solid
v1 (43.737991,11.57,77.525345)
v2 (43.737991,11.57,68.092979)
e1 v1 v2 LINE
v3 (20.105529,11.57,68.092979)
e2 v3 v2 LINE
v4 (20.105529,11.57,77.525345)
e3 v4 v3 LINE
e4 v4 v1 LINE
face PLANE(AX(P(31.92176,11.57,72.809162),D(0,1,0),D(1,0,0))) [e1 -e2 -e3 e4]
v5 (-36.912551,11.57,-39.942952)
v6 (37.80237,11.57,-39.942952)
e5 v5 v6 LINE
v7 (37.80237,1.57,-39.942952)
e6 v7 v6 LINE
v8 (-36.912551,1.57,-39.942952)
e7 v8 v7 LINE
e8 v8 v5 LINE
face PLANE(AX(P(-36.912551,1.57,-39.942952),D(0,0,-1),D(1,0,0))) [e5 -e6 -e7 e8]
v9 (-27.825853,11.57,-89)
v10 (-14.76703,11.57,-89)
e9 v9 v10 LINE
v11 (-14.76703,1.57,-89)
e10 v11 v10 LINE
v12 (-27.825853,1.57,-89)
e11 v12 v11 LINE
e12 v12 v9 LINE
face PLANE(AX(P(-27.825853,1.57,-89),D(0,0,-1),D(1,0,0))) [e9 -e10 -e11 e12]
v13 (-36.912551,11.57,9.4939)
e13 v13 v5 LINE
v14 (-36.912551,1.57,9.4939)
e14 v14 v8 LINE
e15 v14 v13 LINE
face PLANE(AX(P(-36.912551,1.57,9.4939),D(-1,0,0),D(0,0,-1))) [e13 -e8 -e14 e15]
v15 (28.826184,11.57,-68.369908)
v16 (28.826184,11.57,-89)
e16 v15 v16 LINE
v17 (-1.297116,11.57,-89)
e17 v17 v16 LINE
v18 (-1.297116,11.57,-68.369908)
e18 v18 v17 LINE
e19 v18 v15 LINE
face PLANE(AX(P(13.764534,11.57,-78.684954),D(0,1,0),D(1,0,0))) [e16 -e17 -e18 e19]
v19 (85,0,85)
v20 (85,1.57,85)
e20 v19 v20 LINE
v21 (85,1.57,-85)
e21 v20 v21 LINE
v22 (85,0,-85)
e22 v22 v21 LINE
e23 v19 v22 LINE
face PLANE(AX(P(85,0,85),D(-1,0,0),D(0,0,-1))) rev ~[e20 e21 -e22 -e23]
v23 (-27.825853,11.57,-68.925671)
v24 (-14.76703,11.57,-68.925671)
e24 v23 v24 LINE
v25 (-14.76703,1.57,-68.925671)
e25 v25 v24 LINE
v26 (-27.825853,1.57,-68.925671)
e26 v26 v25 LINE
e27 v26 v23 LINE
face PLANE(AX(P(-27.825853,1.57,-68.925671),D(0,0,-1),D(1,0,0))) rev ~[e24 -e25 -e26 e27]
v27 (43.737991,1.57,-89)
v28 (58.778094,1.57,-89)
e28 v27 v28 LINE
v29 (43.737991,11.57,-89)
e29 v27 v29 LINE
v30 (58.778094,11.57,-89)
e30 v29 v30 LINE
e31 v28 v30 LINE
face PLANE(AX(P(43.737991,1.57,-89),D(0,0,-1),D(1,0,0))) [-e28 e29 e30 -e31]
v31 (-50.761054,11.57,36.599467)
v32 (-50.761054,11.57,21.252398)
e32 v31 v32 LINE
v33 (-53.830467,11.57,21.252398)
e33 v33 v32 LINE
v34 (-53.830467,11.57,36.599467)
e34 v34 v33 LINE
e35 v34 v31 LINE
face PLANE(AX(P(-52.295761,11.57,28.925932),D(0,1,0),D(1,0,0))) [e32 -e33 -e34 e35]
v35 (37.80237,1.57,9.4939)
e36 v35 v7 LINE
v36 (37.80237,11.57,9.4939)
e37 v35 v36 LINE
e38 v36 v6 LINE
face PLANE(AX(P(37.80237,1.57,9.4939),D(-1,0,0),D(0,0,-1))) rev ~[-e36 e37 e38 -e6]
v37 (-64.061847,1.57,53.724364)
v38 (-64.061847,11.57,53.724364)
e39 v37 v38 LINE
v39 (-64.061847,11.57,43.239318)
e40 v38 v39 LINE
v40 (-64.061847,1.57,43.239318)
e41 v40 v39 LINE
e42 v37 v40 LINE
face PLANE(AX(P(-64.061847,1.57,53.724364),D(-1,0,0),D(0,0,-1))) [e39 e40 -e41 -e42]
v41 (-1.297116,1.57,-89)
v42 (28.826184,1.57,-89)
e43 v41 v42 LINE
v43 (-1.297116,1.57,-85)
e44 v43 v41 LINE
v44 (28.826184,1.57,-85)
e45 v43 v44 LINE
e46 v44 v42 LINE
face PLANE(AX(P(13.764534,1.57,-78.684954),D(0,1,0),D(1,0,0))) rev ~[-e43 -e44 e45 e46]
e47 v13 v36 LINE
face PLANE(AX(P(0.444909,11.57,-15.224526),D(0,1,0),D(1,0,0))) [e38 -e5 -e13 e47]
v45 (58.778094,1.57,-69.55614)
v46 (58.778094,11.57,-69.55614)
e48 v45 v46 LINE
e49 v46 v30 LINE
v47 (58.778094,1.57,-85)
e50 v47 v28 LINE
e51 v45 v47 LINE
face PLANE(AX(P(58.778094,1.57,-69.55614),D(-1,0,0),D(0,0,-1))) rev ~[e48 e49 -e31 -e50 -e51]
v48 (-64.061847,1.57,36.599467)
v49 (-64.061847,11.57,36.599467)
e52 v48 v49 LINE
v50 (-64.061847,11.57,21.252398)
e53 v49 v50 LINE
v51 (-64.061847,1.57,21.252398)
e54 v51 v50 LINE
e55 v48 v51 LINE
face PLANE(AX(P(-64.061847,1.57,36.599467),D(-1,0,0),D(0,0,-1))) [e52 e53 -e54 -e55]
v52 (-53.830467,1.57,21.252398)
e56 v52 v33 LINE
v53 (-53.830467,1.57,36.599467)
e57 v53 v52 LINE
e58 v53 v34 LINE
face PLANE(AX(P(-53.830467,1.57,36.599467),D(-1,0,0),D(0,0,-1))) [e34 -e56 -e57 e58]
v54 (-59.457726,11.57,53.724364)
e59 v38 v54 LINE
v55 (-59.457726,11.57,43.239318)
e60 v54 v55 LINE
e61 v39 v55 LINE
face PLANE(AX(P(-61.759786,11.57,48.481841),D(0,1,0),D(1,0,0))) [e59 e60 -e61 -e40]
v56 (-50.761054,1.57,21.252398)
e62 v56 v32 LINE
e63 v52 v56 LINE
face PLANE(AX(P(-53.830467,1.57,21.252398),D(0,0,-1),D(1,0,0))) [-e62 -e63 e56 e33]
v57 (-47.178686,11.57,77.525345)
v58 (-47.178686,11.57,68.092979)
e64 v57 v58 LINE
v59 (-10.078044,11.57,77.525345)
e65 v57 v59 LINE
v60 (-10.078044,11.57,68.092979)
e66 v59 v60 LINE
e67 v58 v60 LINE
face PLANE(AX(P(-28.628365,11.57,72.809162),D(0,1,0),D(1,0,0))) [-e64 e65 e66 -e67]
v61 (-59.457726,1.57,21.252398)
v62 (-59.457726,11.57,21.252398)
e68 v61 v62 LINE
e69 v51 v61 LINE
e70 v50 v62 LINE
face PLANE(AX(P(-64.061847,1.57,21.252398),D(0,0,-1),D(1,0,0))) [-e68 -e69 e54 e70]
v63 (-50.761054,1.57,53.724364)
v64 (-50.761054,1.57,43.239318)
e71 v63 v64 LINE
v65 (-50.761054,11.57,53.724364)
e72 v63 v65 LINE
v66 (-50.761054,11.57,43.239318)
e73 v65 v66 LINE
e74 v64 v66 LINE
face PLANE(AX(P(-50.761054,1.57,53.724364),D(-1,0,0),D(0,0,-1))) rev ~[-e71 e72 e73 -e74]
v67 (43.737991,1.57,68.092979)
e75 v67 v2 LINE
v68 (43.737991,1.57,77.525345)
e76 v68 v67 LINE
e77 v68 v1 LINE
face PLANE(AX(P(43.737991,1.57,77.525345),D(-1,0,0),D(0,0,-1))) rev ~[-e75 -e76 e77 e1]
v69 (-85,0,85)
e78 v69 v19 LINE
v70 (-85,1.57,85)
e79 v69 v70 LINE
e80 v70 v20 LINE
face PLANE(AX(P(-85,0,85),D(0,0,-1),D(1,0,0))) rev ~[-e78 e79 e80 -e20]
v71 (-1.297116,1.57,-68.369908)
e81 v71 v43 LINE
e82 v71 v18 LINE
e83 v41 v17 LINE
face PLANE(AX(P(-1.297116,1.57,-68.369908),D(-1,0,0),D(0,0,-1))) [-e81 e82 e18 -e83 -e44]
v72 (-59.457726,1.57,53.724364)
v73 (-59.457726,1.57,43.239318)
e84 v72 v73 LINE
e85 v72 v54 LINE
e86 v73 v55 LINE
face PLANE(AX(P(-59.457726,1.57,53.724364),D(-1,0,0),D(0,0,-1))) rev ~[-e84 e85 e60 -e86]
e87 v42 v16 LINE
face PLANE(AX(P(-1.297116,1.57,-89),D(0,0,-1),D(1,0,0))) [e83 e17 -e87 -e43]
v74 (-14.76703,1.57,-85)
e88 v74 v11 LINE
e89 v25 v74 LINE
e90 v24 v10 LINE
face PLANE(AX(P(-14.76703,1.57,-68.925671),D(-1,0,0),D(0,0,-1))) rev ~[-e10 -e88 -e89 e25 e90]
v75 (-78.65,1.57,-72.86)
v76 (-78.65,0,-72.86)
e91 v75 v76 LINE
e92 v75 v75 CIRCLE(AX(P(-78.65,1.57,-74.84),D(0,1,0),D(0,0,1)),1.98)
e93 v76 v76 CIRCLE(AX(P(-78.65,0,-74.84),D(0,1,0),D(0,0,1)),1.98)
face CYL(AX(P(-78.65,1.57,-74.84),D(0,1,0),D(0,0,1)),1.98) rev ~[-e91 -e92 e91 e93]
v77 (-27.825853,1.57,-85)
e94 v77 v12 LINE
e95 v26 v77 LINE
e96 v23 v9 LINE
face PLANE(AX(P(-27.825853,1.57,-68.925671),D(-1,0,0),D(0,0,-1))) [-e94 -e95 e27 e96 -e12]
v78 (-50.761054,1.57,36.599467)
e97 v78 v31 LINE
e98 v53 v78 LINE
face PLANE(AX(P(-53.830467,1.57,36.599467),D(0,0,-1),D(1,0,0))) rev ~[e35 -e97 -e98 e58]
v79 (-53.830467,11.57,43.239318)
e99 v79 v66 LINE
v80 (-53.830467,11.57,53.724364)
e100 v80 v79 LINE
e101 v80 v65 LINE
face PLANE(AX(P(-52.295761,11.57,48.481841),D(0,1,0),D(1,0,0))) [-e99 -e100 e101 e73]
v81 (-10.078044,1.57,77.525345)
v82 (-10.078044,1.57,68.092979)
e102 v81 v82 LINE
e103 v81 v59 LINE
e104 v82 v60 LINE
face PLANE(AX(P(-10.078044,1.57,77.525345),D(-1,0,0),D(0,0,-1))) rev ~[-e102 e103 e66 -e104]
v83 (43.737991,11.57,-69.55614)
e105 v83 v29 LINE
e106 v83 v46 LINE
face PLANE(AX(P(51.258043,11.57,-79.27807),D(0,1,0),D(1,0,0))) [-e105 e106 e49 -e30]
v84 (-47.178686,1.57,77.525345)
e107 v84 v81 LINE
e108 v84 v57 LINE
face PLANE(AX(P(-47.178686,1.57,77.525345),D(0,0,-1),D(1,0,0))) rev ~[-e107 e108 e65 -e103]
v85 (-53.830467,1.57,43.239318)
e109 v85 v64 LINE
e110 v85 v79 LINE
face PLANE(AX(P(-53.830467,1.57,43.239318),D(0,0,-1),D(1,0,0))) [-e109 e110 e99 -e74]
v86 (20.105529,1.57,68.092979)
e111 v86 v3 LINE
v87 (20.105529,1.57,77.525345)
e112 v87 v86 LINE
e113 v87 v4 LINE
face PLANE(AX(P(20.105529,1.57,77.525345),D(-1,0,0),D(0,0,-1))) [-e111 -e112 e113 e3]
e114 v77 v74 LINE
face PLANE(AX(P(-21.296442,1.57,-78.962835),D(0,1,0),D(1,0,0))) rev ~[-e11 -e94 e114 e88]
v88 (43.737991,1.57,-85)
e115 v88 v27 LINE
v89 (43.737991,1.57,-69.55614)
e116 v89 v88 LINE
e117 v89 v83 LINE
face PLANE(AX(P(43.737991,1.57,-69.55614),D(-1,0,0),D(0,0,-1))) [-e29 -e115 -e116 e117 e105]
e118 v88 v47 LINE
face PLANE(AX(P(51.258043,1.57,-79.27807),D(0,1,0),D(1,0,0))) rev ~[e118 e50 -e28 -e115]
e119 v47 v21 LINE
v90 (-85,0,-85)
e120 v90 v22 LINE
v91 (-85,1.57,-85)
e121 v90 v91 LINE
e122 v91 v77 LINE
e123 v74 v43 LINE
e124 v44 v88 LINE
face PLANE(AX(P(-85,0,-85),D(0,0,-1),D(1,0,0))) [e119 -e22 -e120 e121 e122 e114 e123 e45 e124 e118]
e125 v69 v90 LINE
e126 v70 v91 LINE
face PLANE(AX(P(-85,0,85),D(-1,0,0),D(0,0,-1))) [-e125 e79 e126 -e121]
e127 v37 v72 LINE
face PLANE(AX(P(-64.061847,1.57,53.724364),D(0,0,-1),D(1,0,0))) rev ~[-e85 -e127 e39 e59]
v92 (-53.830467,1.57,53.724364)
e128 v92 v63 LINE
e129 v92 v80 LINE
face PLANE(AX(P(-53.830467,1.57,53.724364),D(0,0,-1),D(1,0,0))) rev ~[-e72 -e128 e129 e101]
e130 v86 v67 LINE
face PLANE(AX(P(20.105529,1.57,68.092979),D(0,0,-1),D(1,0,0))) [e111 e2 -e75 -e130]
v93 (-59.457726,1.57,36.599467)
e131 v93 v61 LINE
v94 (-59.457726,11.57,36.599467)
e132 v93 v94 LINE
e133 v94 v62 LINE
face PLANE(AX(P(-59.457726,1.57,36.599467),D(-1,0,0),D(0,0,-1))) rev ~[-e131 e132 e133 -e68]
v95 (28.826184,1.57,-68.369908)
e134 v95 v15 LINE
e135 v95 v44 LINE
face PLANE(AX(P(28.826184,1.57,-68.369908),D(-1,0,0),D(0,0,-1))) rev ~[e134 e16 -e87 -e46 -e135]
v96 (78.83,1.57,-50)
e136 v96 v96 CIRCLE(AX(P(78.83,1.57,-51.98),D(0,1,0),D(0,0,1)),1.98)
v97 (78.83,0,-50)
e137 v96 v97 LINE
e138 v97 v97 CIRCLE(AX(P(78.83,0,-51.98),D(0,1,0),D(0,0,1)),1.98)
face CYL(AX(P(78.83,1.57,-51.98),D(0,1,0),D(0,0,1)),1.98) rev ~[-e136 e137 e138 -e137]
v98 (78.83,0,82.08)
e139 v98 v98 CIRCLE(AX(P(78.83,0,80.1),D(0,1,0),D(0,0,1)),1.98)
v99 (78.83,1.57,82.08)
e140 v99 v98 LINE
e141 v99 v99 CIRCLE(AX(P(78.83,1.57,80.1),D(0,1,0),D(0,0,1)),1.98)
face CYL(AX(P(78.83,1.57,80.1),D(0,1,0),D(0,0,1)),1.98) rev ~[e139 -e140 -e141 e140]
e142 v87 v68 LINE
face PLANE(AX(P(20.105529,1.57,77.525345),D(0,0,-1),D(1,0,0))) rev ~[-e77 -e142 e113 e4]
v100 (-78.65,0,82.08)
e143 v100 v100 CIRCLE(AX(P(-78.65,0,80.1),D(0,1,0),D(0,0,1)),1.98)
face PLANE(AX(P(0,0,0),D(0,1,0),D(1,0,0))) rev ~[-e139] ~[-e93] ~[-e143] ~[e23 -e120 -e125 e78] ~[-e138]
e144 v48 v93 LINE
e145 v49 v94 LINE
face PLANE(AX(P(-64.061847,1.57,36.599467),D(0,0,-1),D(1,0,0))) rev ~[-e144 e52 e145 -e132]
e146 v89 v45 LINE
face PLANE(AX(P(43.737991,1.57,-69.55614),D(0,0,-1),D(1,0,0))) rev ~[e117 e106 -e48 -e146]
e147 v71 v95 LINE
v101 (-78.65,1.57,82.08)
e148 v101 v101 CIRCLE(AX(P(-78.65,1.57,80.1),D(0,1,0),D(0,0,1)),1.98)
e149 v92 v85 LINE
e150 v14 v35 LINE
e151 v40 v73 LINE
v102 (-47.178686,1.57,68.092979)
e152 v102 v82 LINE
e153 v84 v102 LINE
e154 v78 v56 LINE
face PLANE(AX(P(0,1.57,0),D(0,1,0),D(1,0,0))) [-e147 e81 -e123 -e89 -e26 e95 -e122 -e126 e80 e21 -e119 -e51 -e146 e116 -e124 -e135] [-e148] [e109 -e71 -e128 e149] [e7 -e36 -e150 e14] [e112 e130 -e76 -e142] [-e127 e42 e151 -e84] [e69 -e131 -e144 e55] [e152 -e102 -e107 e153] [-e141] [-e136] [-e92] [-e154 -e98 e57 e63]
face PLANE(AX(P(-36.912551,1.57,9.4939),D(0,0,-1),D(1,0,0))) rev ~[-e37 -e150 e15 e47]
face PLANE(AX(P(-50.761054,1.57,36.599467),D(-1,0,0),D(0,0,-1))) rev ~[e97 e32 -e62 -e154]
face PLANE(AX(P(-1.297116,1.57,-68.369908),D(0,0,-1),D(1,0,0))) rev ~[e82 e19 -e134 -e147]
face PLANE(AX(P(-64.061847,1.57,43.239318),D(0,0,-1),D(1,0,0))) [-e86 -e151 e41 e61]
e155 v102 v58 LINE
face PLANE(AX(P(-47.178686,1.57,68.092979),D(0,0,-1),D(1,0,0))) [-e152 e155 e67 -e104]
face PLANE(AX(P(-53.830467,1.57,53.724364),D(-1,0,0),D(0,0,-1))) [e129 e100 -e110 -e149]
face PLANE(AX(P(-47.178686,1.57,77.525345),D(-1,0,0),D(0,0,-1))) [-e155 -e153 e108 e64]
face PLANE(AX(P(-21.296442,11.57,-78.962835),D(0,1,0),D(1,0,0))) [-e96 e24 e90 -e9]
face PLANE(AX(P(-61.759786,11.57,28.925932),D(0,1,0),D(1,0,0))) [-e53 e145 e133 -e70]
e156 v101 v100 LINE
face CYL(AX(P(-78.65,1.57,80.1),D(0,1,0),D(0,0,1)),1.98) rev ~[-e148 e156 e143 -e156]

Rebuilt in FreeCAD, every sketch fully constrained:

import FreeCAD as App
import Part
import Sketcher


def add_polygon(sketch, points):
    """Adds a closed chain of lines whose ends are joined by coincident constraints."""
    first, n = sketch.GeometryCount, len(points)
    for a, b in zip(points, points[1:] + points[:1]):
        sketch.addGeometry(Part.LineSegment(App.Vector(*a, 0), App.Vector(*b, 0)), False)
    for i in range(n):
        sketch.addConstraint(Sketcher.Constraint("Coincident", first + i, 2, first + (i + 1) % n, 1))

doc = App.newDocument("Part")
body = doc.addObject("PartDesign::Body", "Body")

sketch1 = body.newObject("Sketcher::SketchObject", "Sketch")
sketch1.AttachmentSupport = (doc.getObject("XZ_Plane"), [""])
sketch1.MapMode = "FlatFace"
add_polygon(sketch1, [(-85, -85), (-85, 85), (85, 85), (85, -85)])
sketch1.addConstraint(Sketcher.Constraint("Vertical", 0))
sketch1.addConstraint(Sketcher.Constraint("Horizontal", 1))
sketch1.addConstraint(Sketcher.Constraint("Vertical", 2))
sketch1.addConstraint(Sketcher.Constraint("Horizontal", 3))
sketch1.addConstraint(Sketcher.Constraint("Symmetric", 0, 2, 2, 2, -1, 1))
sketch1.addConstraint(Sketcher.Constraint("Equal", 3, 0))
sketch1.addConstraint(Sketcher.Constraint("DistanceX", 1, 1, 1, 2, 170.0))
pad1 = body.newObject("PartDesign::Pad", "Pad")
pad1.Profile = sketch1
pad1.Length = 1.57
pad1.Reversed = True

sketch2 = body.newObject("Sketcher::SketchObject", "Sketch001")
sketch2.AttachmentSupport = (doc.getObject("XZ_Plane"), [""])
sketch2.MapMode = "FlatFace"
sketch2.AttachmentOffset = App.Placement(App.Vector(0, 0, -1.57), App.Rotation())
sketch2.addGeometry(Part.Circle(App.Vector(-78.7, -74.8, 0), App.Vector(0, 0, 1), 2), False)
sketch2.addGeometry(Part.Circle(App.Vector(-78.7, 80.1, 0), App.Vector(0, 0, 1), 2), False)
sketch2.addGeometry(Part.Circle(App.Vector(78.8, 80.1, 0), App.Vector(0, 0, 1), 2), False)
sketch2.addGeometry(Part.Circle(App.Vector(78.8, -52, 0), App.Vector(0, 0, 1), 2), False)
sketch2.addConstraint(Sketcher.Constraint("Equal", 0, 1))
sketch2.addConstraint(Sketcher.Constraint("Equal", 1, 2))
sketch2.addConstraint(Sketcher.Constraint("Equal", 2, 3))
sketch2.addConstraint(Sketcher.Constraint("Horizontal", 1, 3, 2, 3))
sketch2.addConstraint(Sketcher.Constraint("Vertical", 0, 3, 1, 3))
sketch2.addConstraint(Sketcher.Constraint("Vertical", 2, 3, 3, 3))
sketch2.addConstraint(Sketcher.Constraint("Diameter", 0, 3.96))
sketch2.addConstraint(Sketcher.Constraint("DistanceY", -1, 1, 1, 3, 80.1))
sketch2.addConstraint(Sketcher.Constraint("DistanceX", 0, 3, -1, 1, 78.65))
sketch2.addConstraint(Sketcher.Constraint("DistanceY", 0, 3, -1, 1, 74.84))
sketch2.addConstraint(Sketcher.Constraint("DistanceX", -1, 1, 2, 3, 78.83))
sketch2.addConstraint(Sketcher.Constraint("DistanceY", 3, 3, -1, 1, 51.98))
pocket1 = body.newObject("PartDesign::Pocket", "Pocket")
pocket1.Profile = sketch2
pocket1.Type = "ThroughAll"
pocket1.Reversed = True

sketch3 = body.newObject("Sketcher::SketchObject", "Sketch002")
sketch3.AttachmentSupport = (doc.getObject("XZ_Plane"), [""])
sketch3.MapMode = "FlatFace"
sketch3.AttachmentOffset = App.Placement(App.Vector(0, 0, -1.57), App.Rotation())
add_polygon(sketch3, [(-36.9, -39.9), (-36.9, 9.5), (37.8, 9.5), (37.8, -39.9)])
add_polygon(sketch3, [(-27.8, -89), (-27.8, -68.9), (-14.8, -68.9), (-14.8, -89)])
add_polygon(sketch3, [(-1.3, -89), (-1.3, -68.4), (28.8, -68.4), (28.8, -89)])
add_polygon(sketch3, [(43.7, -89), (43.7, -69.6), (58.8, -69.6), (58.8, -89)])
add_polygon(sketch3, [(-47.2, 68.1), (-47.2, 77.5), (-10.1, 77.5), (-10.1, 68.1)])
add_polygon(sketch3, [(20.1, 68.1), (20.1, 77.5), (43.7, 77.5), (43.7, 68.1)])
add_polygon(sketch3, [(-64.1, 21.3), (-64.1, 36.6), (-59.5, 36.6), (-59.5, 21.3)])
add_polygon(sketch3, [(-53.8, 21.3), (-53.8, 36.6), (-50.8, 36.6), (-50.8, 21.3)])
add_polygon(sketch3, [(-64.1, 43.2), (-64.1, 53.7), (-59.5, 53.7), (-59.5, 43.2)])
add_polygon(sketch3, [(-53.8, 43.2), (-53.8, 53.7), (-50.8, 53.7), (-50.8, 43.2)])
sketch3.addConstraint(Sketcher.Constraint("Vertical", 0))
sketch3.addConstraint(Sketcher.Constraint("Horizontal", 1))
sketch3.addConstraint(Sketcher.Constraint("Vertical", 2))
sketch3.addConstraint(Sketcher.Constraint("Horizontal", 3))
sketch3.addConstraint(Sketcher.Constraint("Vertical", 4))
sketch3.addConstraint(Sketcher.Constraint("Horizontal", 5))
sketch3.addConstraint(Sketcher.Constraint("Vertical", 6))
sketch3.addConstraint(Sketcher.Constraint("Horizontal", 7))
sketch3.addConstraint(Sketcher.Constraint("Vertical", 8))
sketch3.addConstraint(Sketcher.Constraint("Horizontal", 9))
sketch3.addConstraint(Sketcher.Constraint("Vertical", 10))
sketch3.addConstraint(Sketcher.Constraint("Horizontal", 11))
sketch3.addConstraint(Sketcher.Constraint("Vertical", 12))
sketch3.addConstraint(Sketcher.Constraint("Horizontal", 13))
sketch3.addConstraint(Sketcher.Constraint("Vertical", 14))
sketch3.addConstraint(Sketcher.Constraint("Horizontal", 15))
sketch3.addConstraint(Sketcher.Constraint("Vertical", 16))
sketch3.addConstraint(Sketcher.Constraint("Horizontal", 17))
sketch3.addConstraint(Sketcher.Constraint("Vertical", 18))
sketch3.addConstraint(Sketcher.Constraint("Horizontal", 19))
sketch3.addConstraint(Sketcher.Constraint("Vertical", 20))
sketch3.addConstraint(Sketcher.Constraint("Horizontal", 21))
sketch3.addConstraint(Sketcher.Constraint("Vertical", 22))
sketch3.addConstraint(Sketcher.Constraint("Horizontal", 23))
sketch3.addConstraint(Sketcher.Constraint("Vertical", 24))
sketch3.addConstraint(Sketcher.Constraint("Horizontal", 25))
sketch3.addConstraint(Sketcher.Constraint("Vertical", 26))
sketch3.addConstraint(Sketcher.Constraint("Horizontal", 27))
sketch3.addConstraint(Sketcher.Constraint("Vertical", 28))
sketch3.addConstraint(Sketcher.Constraint("Horizontal", 29))
sketch3.addConstraint(Sketcher.Constraint("Vertical", 30))
sketch3.addConstraint(Sketcher.Constraint("Horizontal", 31))
sketch3.addConstraint(Sketcher.Constraint("Vertical", 32))
sketch3.addConstraint(Sketcher.Constraint("Horizontal", 33))
sketch3.addConstraint(Sketcher.Constraint("Vertical", 34))
sketch3.addConstraint(Sketcher.Constraint("Horizontal", 35))
sketch3.addConstraint(Sketcher.Constraint("Vertical", 36))
sketch3.addConstraint(Sketcher.Constraint("Horizontal", 37))
sketch3.addConstraint(Sketcher.Constraint("Vertical", 38))
sketch3.addConstraint(Sketcher.Constraint("Horizontal", 39))
sketch3.addConstraint(Sketcher.Constraint("Horizontal", 7, 2, 10, 2))
sketch3.addConstraint(Sketcher.Constraint("Horizontal", 11, 2, 14, 2))
sketch3.addConstraint(Sketcher.Constraint("Horizontal", 17, 2, 20, 2))
sketch3.addConstraint(Sketcher.Constraint("Horizontal", 19, 2, 22, 2))
sketch3.addConstraint(Sketcher.Constraint("Horizontal", 25, 2, 28, 2))
sketch3.addConstraint(Sketcher.Constraint("Horizontal", 27, 2, 30, 2))
sketch3.addConstraint(Sketcher.Constraint("Horizontal", 33, 2, 36, 2))
sketch3.addConstraint(Sketcher.Constraint("Horizontal", 35, 2, 38, 2))
sketch3.addConstraint(Sketcher.Constraint("Vertical", 15, 2, 21, 2))
sketch3.addConstraint(Sketcher.Constraint("Vertical", 27, 2, 32, 2))
sketch3.addConstraint(Sketcher.Constraint("Vertical", 26, 2, 33, 2))
sketch3.addConstraint(Sketcher.Constraint("Vertical", 31, 2, 36, 2))
sketch3.addConstraint(Sketcher.Constraint("Vertical", 30, 2, 37, 2))
sketch3.addConstraint(Sketcher.Constraint("DistanceY", 6, 2, -1, 1, 89.0))
sketch3.addConstraint(Sketcher.Constraint("DistanceX", 9, 1, 9, 2, 30.1233))
sketch3.addConstraint(Sketcher.Constraint("DistanceX", 1, 1, 1, 2, 74.714921))
sketch3.addConstraint(Sketcher.Constraint("DistanceX", 17, 1, 17, 2, 37.100641))
sketch3.addConstraint(Sketcher.Constraint("DistanceX", 25, 1, 25, 2, 4.604121))
sketch3.addConstraint(Sketcher.Constraint("DistanceY", 4, 1, 4, 2, 20.074329))
sketch3.addConstraint(Sketcher.Constraint("DistanceY", 8, 1, 8, 2, 20.630092))
sketch3.addConstraint(Sketcher.Constraint("DistanceY", 12, 1, 12, 2, 19.44386))
sketch3.addConstraint(Sketcher.Constraint("DistanceY", 24, 1, 24, 2, 15.347069))
sketch3.addConstraint(Sketcher.Constraint("DistanceY", -1, 1, 0, 2, 9.4939))
sketch3.addConstraint(Sketcher.Constraint("DistanceX", 3, 2, 4, 2, 9.086699))
sketch3.addConstraint(Sketcher.Constraint("DistanceX", 5, 2, 2, 2, 52.5694))
sketch3.addConstraint(Sketcher.Constraint("DistanceX", 13, 1, 13, 2, 15.040103))
sketch3.addConstraint(Sketcher.Constraint("DistanceX", 21, 1, 21, 2, 23.632463))
sketch3.addConstraint(Sketcher.Constraint("DistanceX", 29, 1, 29, 2, 3.069414))
sketch3.addConstraint(Sketcher.Constraint("DistanceY", 0, 1, 0, 2, 49.436852))
sketch3.addConstraint(Sketcher.Constraint("DistanceY", 16, 1, 16, 2, 9.432366))
sketch3.addConstraint(Sketcher.Constraint("DistanceY", 32, 1, 32, 2, 10.485046))
sketch3.addConstraint(Sketcher.Constraint("DistanceX", 0, 2, -1, 1, 36.912551))
sketch3.addConstraint(Sketcher.Constraint("DistanceX", -1, 1, 12, 2, 43.737991))
sketch3.addConstraint(Sketcher.Constraint("DistanceY", -1, 1, 18, 2, 68.092979))
sketch3.addConstraint(Sketcher.Constraint("DistanceY", -1, 1, 34, 2, 43.239318))
sketch3.addConstraint(Sketcher.Constraint("DistanceX", 9, 2, 13, 2, 29.95191))
sketch3.addConstraint(Sketcher.Constraint("DistanceX", 24, 2, 19, 2, 16.883161))
sketch3.addConstraint(Sketcher.Constraint("DistanceY", 24, 2, 16, 2, 40.925879))
sketch3.addConstraint(Sketcher.Constraint("DistanceX", 25, 2, 28, 2, 5.627259))
sketch3.addConstraint(Sketcher.Constraint("DistanceX", 16, 2, -1, 1, 47.178686))
pad2 = body.newObject("PartDesign::Pad", "Pad001")
pad2.Profile = sketch3
pad2.Length = 10
pad2.Reversed = True

doc.recompute()
